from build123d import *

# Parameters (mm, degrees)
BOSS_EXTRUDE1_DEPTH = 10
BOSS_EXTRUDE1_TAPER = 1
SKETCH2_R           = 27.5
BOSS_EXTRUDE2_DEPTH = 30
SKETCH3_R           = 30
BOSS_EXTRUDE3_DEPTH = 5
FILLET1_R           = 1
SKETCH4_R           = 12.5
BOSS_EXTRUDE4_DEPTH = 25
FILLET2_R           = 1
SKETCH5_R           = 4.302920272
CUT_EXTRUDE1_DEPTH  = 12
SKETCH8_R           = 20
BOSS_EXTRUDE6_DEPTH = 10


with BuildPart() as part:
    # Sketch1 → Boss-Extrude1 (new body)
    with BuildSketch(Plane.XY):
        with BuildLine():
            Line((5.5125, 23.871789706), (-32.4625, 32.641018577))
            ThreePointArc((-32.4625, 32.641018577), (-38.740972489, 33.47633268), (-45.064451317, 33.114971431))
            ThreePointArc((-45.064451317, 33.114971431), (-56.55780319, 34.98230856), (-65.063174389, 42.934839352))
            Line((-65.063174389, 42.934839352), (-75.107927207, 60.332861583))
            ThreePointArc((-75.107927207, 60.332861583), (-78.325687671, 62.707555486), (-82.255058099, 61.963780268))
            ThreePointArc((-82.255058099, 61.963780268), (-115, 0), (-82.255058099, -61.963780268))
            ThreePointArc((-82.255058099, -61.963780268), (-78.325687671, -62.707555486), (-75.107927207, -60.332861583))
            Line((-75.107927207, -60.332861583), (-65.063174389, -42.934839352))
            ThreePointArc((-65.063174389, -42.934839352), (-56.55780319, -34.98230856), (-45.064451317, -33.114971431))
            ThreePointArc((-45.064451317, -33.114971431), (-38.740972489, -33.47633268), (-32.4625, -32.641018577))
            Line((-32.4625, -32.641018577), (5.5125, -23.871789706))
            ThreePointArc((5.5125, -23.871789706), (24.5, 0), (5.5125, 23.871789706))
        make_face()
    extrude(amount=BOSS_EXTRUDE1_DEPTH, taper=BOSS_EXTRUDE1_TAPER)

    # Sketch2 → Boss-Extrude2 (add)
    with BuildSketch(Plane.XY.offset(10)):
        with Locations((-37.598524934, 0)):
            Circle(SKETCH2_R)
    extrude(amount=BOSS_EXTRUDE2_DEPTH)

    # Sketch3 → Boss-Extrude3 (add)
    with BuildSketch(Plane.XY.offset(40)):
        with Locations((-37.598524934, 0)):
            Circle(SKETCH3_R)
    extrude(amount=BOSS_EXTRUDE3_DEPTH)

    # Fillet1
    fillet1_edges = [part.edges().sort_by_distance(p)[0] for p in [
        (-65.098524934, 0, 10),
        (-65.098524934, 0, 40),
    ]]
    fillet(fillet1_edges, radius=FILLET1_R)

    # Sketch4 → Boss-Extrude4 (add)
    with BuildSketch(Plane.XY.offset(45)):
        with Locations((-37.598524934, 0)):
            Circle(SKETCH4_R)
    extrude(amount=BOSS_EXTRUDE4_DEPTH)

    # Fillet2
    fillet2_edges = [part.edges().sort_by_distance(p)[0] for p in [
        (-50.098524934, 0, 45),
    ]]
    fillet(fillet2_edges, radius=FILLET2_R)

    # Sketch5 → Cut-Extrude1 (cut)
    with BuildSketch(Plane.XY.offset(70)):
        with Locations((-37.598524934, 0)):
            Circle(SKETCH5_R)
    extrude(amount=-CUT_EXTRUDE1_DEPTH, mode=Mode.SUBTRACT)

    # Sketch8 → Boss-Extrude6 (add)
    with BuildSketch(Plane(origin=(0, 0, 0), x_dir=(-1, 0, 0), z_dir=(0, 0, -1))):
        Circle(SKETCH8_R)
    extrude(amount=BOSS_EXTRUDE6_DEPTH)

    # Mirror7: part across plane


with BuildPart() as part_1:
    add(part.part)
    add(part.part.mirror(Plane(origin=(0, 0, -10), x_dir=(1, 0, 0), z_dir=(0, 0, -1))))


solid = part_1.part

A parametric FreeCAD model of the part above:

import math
import FreeCAD as App
import Part
import Sketcher
Q = App.Units.Quantity


def edges_at(feature, points):
    """Names of the edges that pass closest to the given points."""
    edges = feature.Shape.Edges
    near = lambda p: min(range(len(edges)), key=lambda i: edges[i].distToShape(Part.Vertex(*p))[0])
    return sorted({f"Edge{near(p) + 1}" for p in points})

doc = App.newDocument("Part")
body = doc.addObject("PartDesign::Body", "Body")

sketch1 = doc.addObject("Sketcher::SketchObject", "Sketch")
body.addObject(sketch1)
sketch1.AttachmentSupport = (doc.XY_Plane, [""])
sketch1.MapMode = "FlatFace"
sketch1.addGeometry(Part.LineSegment(App.Vector(5.5125, 23.87179, 0), App.Vector(-32.4625, 32.641019, 0)), False)
sketch1.addGeometry(Part.ArcOfCircle(Part.Circle(App.Vector(-40, 0, 0), App.Vector(0, 0, 1), 33.5), math.radians(76.997122), math.radians(98.695179)), False)
sketch1.addGeometry(Part.ArcOfCircle(Part.Circle(App.Vector(-47.742666, 52.934839, 0), App.Vector(0, 0, 1), 20), math.radians(-150), math.radians(-82.304361)), False)
sketch1.addGeometry(Part.LineSegment(App.Vector(-65.063174, 42.934839, 0), App.Vector(-75.107927, 60.332862, 0)), False)
sketch1.addGeometry(Part.ArcOfCircle(Part.Circle(App.Vector(-79.438054, 57.832862, 0), App.Vector(0, 0, 1), 5), math.radians(30), math.radians(124.291312)), False)
sketch1.addGeometry(Part.ArcOfCircle(Part.Circle(App.Vector(-40, 0, 0), App.Vector(0, 0, 1), 75), math.radians(124.291312), math.radians(235.708688)), False)
sketch1.addGeometry(Part.ArcOfCircle(Part.Circle(App.Vector(-79.438054, -57.832862, 0), App.Vector(0, 0, 1), 5), math.radians(-124.291312), math.radians(-30)), False)
sketch1.addGeometry(Part.LineSegment(App.Vector(-75.107927, -60.332862, 0), App.Vector(-65.063174, -42.934839, 0)), False)
sketch1.addGeometry(Part.ArcOfCircle(Part.Circle(App.Vector(-47.742666, -52.934839, 0), App.Vector(0, 0, 1), 20), math.radians(82.304361), math.radians(150)), False)
sketch1.addGeometry(Part.ArcOfCircle(Part.Circle(App.Vector(-40, 0, 0), App.Vector(0, 0, 1), 33.5), math.radians(-98.695179), math.radians(-76.997122)), False)
sketch1.addGeometry(Part.LineSegment(App.Vector(-32.4625, -32.641019, 0), App.Vector(5.5125, -23.87179, 0)), False)
sketch1.addGeometry(Part.ArcOfCircle(Part.Circle(App.Vector(0, 0, 0), App.Vector(0, 0, 1), 24.5), math.radians(-76.997122), math.radians(76.997122)), False)
sketch1.addConstraint(Sketcher.Constraint("Coincident", 0, 2, 1, 1))
sketch1.addConstraint(Sketcher.Constraint("Coincident", 1, 2, 2, 2))
sketch1.addConstraint(Sketcher.Constraint("Coincident", 2, 1, 3, 1))
sketch1.addConstraint(Sketcher.Constraint("Coincident", 3, 2, 4, 1))
sketch1.addConstraint(Sketcher.Constraint("Coincident", 4, 2, 5, 1))
sketch1.addConstraint(Sketcher.Constraint("Coincident", 5, 2, 6, 1))
sketch1.addConstraint(Sketcher.Constraint("Coincident", 6, 2, 7, 1))
sketch1.addConstraint(Sketcher.Constraint("Coincident", 7, 2, 8, 2))
sketch1.addConstraint(Sketcher.Constraint("Coincident", 8, 1, 9, 1))
sketch1.addConstraint(Sketcher.Constraint("Coincident", 9, 2, 10, 1))
sketch1.addConstraint(Sketcher.Constraint("Coincident", 10, 2, 11, 1))
sketch1.addConstraint(Sketcher.Constraint("Coincident", 11, 2, 0, 1))
sketch1.addConstraint(Sketcher.Constraint("Coincident", 11, 3, -1, 1))
sketch1.addConstraint(Sketcher.Constraint("Coincident", 5, 3, 1, 3))
sketch1.addConstraint(Sketcher.Constraint("Coincident", 9, 3, 1, 3))
sketch1.addConstraint(Sketcher.Constraint("PointOnObject", 1, 3, -1))
sketch1.addConstraint(Sketcher.Constraint("Radius", 2, Q("20 mm")))
sketch1.addConstraint(Sketcher.Constraint("Radius", 4, Q("5 mm")))
sketch1.addConstraint(Sketcher.Constraint("Radius", 5, Q("75 mm")))
sketch1.addConstraint(Sketcher.Constraint("Radius", 6, Q("5 mm")))
sketch1.addConstraint(Sketcher.Constraint("Radius", 8, Q("20 mm")))
sketch1.addConstraint(Sketcher.Constraint("Radius", 1, Q("33.5 mm")))
sketch1.addConstraint(Sketcher.Constraint("Radius", 9, Q("33.5 mm")))
sketch1.addConstraint(Sketcher.Constraint("Radius", 11, Q("24.5 mm")))
sketch1.addConstraint(Sketcher.Constraint("DistanceX", 1, 3, -1, 1, Q("40 mm")))
sketch1.addConstraint(Sketcher.Constraint("DistanceY", 2, 1, 2, 3, Q("10 mm")))
sketch1.addConstraint(Sketcher.Constraint("DistanceY", 8, 3, 7, 2, Q("10 mm")))
sketch1.addConstraint(Sketcher.Constraint("DistanceY", 4, 3, 3, 2, Q("2.5 mm")))
sketch1.addConstraint(Sketcher.Constraint("DistanceY", 6, 2, 6, 3, Q("2.5 mm")))
sketch1.addConstraint(Sketcher.Constraint("DistanceX", 9, 2, 10, 2, Q("37.975 mm")))
sketch1.addConstraint(Sketcher.Constraint("DistanceX", 0, 2, 11, 2, Q("37.975 mm")))
sketch1.addConstraint(Sketcher.Constraint("DistanceX", 0, 2, -1, 1, Q("32.4625 mm")))
sketch1.addConstraint(Sketcher.Constraint("DistanceX", 9, 2, -1, 1, Q("32.4625 mm")))
sketch1.addConstraint(Sketcher.Constraint("DistanceY", 6, 3, 2, 3, Q("110.767701 mm")))
sketch1.addConstraint(Sketcher.Constraint("DistanceY", 8, 3, 4, 3, Q("110.767701 mm")))
sketch1.addConstraint(Sketcher.Constraint("DistanceY", -1, 1, 2, 3, Q("52.934839 mm")))
sketch1.addConstraint(Sketcher.Constraint("DistanceY", -1, 1, 4, 3, Q("57.832862 mm")))
sketch1.addConstraint(Sketcher.Constraint("DistanceX", 1, 2, -1, 1, Q("45.064451 mm")))
sketch1.addConstraint(Sketcher.Constraint("DistanceX", 4, 2, -1, 1, Q("82.255058 mm")))
sketch1.addConstraint(Sketcher.Constraint("DistanceX", 5, 2, -1, 1, Q("82.255058 mm")))
sketch1.addConstraint(Sketcher.Constraint("DistanceX", 8, 1, -1, 1, Q("45.064451 mm")))
pad1 = doc.addObject("PartDesign::Pad", "Pad")
body.addObject(pad1)
pad1.Profile = sketch1
pad1.Length = 10
pad1.TaperAngle = -1

sketch2 = doc.addObject("Sketcher::SketchObject", "Sketch001")
body.addObject(sketch2)
sketch2.AttachmentSupport = (doc.XY_Plane, [""])
sketch2.MapMode = "FlatFace"
sketch2.AttachmentOffset = App.Placement(App.Vector(0, 0, 10), App.Rotation())
sketch2.addGeometry(Part.Circle(App.Vector(-38, 0, 0), App.Vector(0, 0, 1), 28), False)
sketch2.addConstraint(Sketcher.Constraint("PointOnObject", 0, 3, -1))
sketch2.addConstraint(Sketcher.Constraint("Diameter", 0, Q("55 mm")))
sketch2.addConstraint(Sketcher.Constraint("DistanceX", 0, 3, -1, 1, Q("37.598525 mm")))
pad2 = doc.addObject("PartDesign::Pad", "Pad001")
body.addObject(pad2)
pad2.Profile = sketch2
pad2.Length = 30

sketch3 = doc.addObject("Sketcher::SketchObject", "Sketch002")
body.addObject(sketch3)
sketch3.AttachmentSupport = (doc.XY_Plane, [""])
sketch3.MapMode = "FlatFace"
sketch3.AttachmentOffset = App.Placement(App.Vector(0, 0, 40), App.Rotation())
sketch3.addGeometry(Part.Circle(App.Vector(-38, 0, 0), App.Vector(0, 0, 1), 30), False)
sketch3.addConstraint(Sketcher.Constraint("PointOnObject", 0, 3, -1))
sketch3.addConstraint(Sketcher.Constraint("Diameter", 0, Q("60 mm")))
sketch3.addConstraint(Sketcher.Constraint("DistanceX", 0, 3, -1, 1, Q("37.598525 mm")))
pad3 = doc.addObject("PartDesign::Pad", "Pad002")
body.addObject(pad3)
pad3.Profile = sketch3
pad3.Length = 5
doc.recompute()

fillet = doc.addObject("PartDesign::Fillet", "Fillet")
body.addObject(fillet)
fillet.Base = (pad3, edges_at(pad3, [(-65.099, 0, 10), (-65.099, 0, 40)]))
fillet.Radius = 1

sketch4 = doc.addObject("Sketcher::SketchObject", "Sketch003")
body.addObject(sketch4)
sketch4.AttachmentSupport = (doc.XY_Plane, [""])
sketch4.MapMode = "FlatFace"
sketch4.AttachmentOffset = App.Placement(App.Vector(0, 0, 45), App.Rotation())
sketch4.addGeometry(Part.Circle(App.Vector(-38, 0, 0), App.Vector(0, 0, 1), 12), False)
sketch4.addConstraint(Sketcher.Constraint("PointOnObject", 0, 3, -1))
sketch4.addConstraint(Sketcher.Constraint("Diameter", 0, Q("25 mm")))
sketch4.addConstraint(Sketcher.Constraint("DistanceX", 0, 3, -1, 1, Q("37.598525 mm")))
pad4 = doc.addObject("PartDesign::Pad", "Pad003")
body.addObject(pad4)
pad4.Profile = sketch4
pad4.Length = 25
doc.recompute()

fillet2 = doc.addObject("PartDesign::Fillet", "Fillet001")
body.addObject(fillet2)
fillet2.Base = (pad4, edges_at(pad4, [(-50.099, 0, 45)]))
fillet2.Radius = 1

sketch5 = doc.addObject("Sketcher::SketchObject", "Sketch004")
body.addObject(sketch5)
sketch5.AttachmentSupport = (doc.XY_Plane, [""])
sketch5.MapMode = "FlatFace"
sketch5.AttachmentOffset = App.Placement(App.Vector(0, 0, 70), App.Rotation())
sketch5.addGeometry(Part.Circle(App.Vector(-37.6, 0, 0), App.Vector(0, 0, 1), 4.3), False)
sketch5.addConstraint(Sketcher.Constraint("PointOnObject", 0, 3, -1))
sketch5.addConstraint(Sketcher.Constraint("Diameter", 0, Q("8.605841 mm")))
sketch5.addConstraint(Sketcher.Constraint("DistanceX", 0, 3, -1, 1, Q("37.598525 mm")))
pocket1 = doc.addObject("PartDesign::Pocket", "Pocket")
body.addObject(pocket1)
pocket1.Profile = sketch5
pocket1.Length = 12

sketch6 = doc.addObject("Sketcher::SketchObject", "Sketch005")
body.addObject(sketch6)
sketch6.AttachmentSupport = (doc.XY_Plane, [""])
sketch6.MapMode = "FlatFace"
sketch6.addGeometry(Part.Circle(App.Vector(0, 0, 0), App.Vector(0, 0, 1), 20), False)
sketch6.addConstraint(Sketcher.Constraint("Coincident", 0, 3, -1, 1))
sketch6.addConstraint(Sketcher.Constraint("Diameter", 0, Q("40 mm")))
pad5 = doc.addObject("PartDesign::Pad", "Pad004")
body.addObject(pad5)
pad5.Profile = sketch6
pad5.Length = 10
pad5.Reversed = True
body2 = doc.addObject("PartDesign::Body", "Body001")
doc.recompute()

body2.BaseFeature = body
doc.recompute()

mirroring = doc.addObject("Part::Mirroring", "Mirroring")
mirroring.Source = body
mirroring.Base = App.Vector(0, 0, -10)
mirroring.Normal = App.Vector(0, 0, -1)
body3 = doc.addObject("PartDesign::Body", "Body002")
body3.BaseFeature = mirroring
boolean = doc.addObject("PartDesign::Boolean", "Boolean")
body2.addObject(boolean)
boolean.Type = "Fuse"
boolean.addObjects([body3])
doc.recompute()
mirroring.Visibility = False

doc.recompute()
